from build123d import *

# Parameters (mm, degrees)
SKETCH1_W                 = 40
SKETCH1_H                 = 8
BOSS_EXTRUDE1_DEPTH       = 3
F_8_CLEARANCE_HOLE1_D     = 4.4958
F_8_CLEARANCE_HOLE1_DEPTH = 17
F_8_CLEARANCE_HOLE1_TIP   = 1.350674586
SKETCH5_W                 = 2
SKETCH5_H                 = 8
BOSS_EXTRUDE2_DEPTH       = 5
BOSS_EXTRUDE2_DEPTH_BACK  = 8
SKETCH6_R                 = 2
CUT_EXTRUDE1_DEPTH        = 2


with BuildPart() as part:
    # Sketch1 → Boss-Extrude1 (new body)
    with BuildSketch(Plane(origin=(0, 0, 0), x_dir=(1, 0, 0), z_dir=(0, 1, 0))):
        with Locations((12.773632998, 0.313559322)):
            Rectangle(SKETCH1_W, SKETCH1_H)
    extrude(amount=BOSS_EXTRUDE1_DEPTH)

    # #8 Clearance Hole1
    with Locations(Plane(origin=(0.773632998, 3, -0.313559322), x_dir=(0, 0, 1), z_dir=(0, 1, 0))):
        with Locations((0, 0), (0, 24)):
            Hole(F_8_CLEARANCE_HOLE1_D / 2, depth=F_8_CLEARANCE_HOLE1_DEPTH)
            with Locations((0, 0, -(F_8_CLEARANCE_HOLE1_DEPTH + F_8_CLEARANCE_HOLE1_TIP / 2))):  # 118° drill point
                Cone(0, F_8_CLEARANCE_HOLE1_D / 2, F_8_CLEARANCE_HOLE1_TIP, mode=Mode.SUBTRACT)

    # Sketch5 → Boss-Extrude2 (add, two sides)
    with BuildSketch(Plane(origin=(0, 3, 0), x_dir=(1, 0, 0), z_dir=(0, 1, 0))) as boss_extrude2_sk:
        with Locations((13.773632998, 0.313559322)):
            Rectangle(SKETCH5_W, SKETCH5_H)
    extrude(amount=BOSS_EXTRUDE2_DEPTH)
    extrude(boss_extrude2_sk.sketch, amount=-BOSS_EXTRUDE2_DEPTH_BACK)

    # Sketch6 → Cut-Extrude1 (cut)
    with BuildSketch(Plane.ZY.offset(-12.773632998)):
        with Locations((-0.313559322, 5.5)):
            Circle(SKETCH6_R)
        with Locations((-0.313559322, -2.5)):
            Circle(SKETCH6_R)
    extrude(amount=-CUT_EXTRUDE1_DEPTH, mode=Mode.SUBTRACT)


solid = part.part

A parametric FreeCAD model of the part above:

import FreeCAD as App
import Part
import Sketcher

V = App.Vector
Q = App.Units.Quantity


def add_polygon(sketch, points):
    """Adds a closed chain of lines whose ends are joined by coincident constraints."""
    first, n = sketch.GeometryCount, len(points)
    for a, b in zip(points, points[1:] + points[:1]):
        sketch.addGeometry(Part.LineSegment(App.Vector(*a, 0), App.Vector(*b, 0)), False)
    for i in range(n):
        sketch.addConstraint(Sketcher.Constraint("Coincident", first + i, 2, first + (i + 1) % n, 1))

doc = App.newDocument("Part")
params = doc.addObject("Spreadsheet::Sheet", "Params")
for row, (alias, value) in enumerate([
    ("sketch1_width", "40 mm"),
    ("sketch1_height", "8 mm"),
    ("pad1_length", "3 mm"),
    ("hole_diameter", "4.4958 mm"),
    ("hole_depth", "17 mm"),
    ("sketch3_width", "2 mm"),
    ("sketch3_height", "8 mm"),
    ("pad2_length", "5 mm"),
    ("pad2_length2", "8 mm"),
    ("sketch4_diameter", "4 mm"),
    ("pocket1_length", "2 mm"),
], start=1):
    params.set(f"A{row}", alias)
    params.set(f"B{row}", "=" + value)
    params.setAlias(f"B{row}", alias)

body = doc.addObject("PartDesign::Body", "Body")

# Sketch on XZ plane
sketch1 = body.newObject("Sketcher::SketchObject", "Sketch")
sketch1.AttachmentSupport = (doc.getObject("XZ_Plane"), [""])
sketch1.MapMode = "FlatFace"
add_polygon(sketch1, [(-7, -4), (-7, 4), (33, 4), (33, -4)])  # lines 0-3
sketch1.addConstraint([
    Sketcher.Constraint("Vertical", 0),
    Sketcher.Constraint("Horizontal", 1),
    Sketcher.Constraint("Vertical", 2),
    Sketcher.Constraint("Horizontal", 3),
    Sketcher.Constraint("DistanceX", 1, 1, 1, 2, Q("40 mm")),
    Sketcher.Constraint("DistanceY", 0, 1, 0, 2, Q("8 mm")),
    Sketcher.Constraint("DistanceY", -1, 1, 0, 2, Q("3.686441 mm")),
    Sketcher.Constraint("DistanceX", 0, 2, -1, 1, Q("7.226367 mm")),
])
sketch1.setExpression("Constraints[8]", "Params.sketch1_width")
sketch1.setExpression("Constraints[9]", "Params.sketch1_height")
pad1 = body.newObject("PartDesign::Pad", "Pad")
pad1.Profile = sketch1
pad1.setExpression("Length", "Params.pad1_length")
pad1.Reversed = True

# Sketch on XZ plane
sketch2 = body.newObject("Sketcher::SketchObject", "Sketch001")
sketch2.AttachmentSupport = (doc.getObject("XZ_Plane"), [""])
sketch2.MapMode = "FlatFace"
sketch2.AttachmentOffset = App.Placement(V(0, 0, -3), App.Rotation())
sketch2.addGeometry([
    Part.Circle(V(0.8, -0.3, 0), V(0, 0, 1), 2.2),
    Part.Circle(V(24.8, -0.3, 0), V(0, 0, 1), 2.2),
], False)
sketch2.addConstraint([
    Sketcher.Constraint("Equal", 0, 1),
    Sketcher.Constraint("Horizontal", 0, 3, 1, 3),
    Sketcher.Constraint("DistanceX", 0, 3, 1, 3, Q("24 mm")),
    Sketcher.Constraint("Diameter", 0, Q("4.4958 mm")),
    Sketcher.Constraint("DistanceY", 0, 3, -1, 1, Q("0.313559 mm")),
    Sketcher.Constraint("DistanceX", -1, 1, 0, 3, Q("0.773633 mm")),
])
doc.recompute()
hole = body.newObject("PartDesign::Hole", "Hole")
hole.Profile = sketch2
hole.ThreadType = "None"
hole.setExpression("Diameter", "Params.hole_diameter")
hole.DepthType = "Dimension"
hole.setExpression("Depth", "Params.hole_depth")
hole.DrillPoint = "Angled"
hole.DrillPointAngle = 118
hole.Reversed = True

# Sketch on XZ plane
sketch3 = body.newObject("Sketcher::SketchObject", "Sketch002")
sketch3.AttachmentSupport = (doc.getObject("XZ_Plane"), [""])
sketch3.MapMode = "FlatFace"
sketch3.AttachmentOffset = App.Placement(V(0, 0, -3), App.Rotation())
add_polygon(sketch3, [(12.8, -4.3), (12.8, 3.7), (14.8, 3.7), (14.8, -4.3)])  # lines 0-3
sketch3.addConstraint([
    Sketcher.Constraint("Vertical", 0),
    Sketcher.Constraint("Horizontal", 1),
    Sketcher.Constraint("Vertical", 2),
    Sketcher.Constraint("Horizontal", 3),
    Sketcher.Constraint("DistanceX", 1, 1, 1, 2, Q("2 mm")),
    Sketcher.Constraint("DistanceY", 0, 1, 0, 2, Q("8 mm")),
    Sketcher.Constraint("DistanceY", -1, 1, 0, 2, Q("3.686441 mm")),
    Sketcher.Constraint("DistanceX", -1, 1, 0, 2, Q("12.773633 mm")),
])
sketch3.setExpression("Constraints[8]", "Params.sketch3_width")
sketch3.setExpression("Constraints[9]", "Params.sketch3_height")
pad2 = body.newObject("PartDesign::Pad", "Pad001")
pad2.Profile = sketch3
pad2.Type = "TwoLengths"
pad2.setExpression("Length", "Params.pad2_length")
pad2.setExpression("Length2", "Params.pad2_length2")
pad2.Reversed = True

# Sketch on YZ plane
sketch4 = body.newObject("Sketcher::SketchObject", "Sketch003")
sketch4.AttachmentSupport = (doc.getObject("YZ_Plane"), [""])
sketch4.MapMode = "FlatFace"
sketch4.AttachmentOffset = App.Placement(V(0, 0, 12.773633), App.Rotation())
sketch4.addGeometry([
    Part.Circle(V(5.5, -0.3, 0), V(0, 0, 1), 2),
    Part.Circle(V(-2.5, -0.3, 0), V(0, 0, 1), 2),
], False)
sketch4.addConstraint([
    Sketcher.Constraint("Equal", 0, 1),
    Sketcher.Constraint("Horizontal", 0, 3, 1, 3),
    Sketcher.Constraint("Diameter", 0, Q("4 mm")),
    Sketcher.Constraint("DistanceX", 1, 3, 0, 3, Q("8 mm")),
    Sketcher.Constraint("DistanceX", -1, 1, 0, 3, Q("5.5 mm")),
    Sketcher.Constraint("DistanceY", 0, 3, -1, 1, Q("0.313559 mm")),
])
sketch4.setExpression("Constraints[2]", "Params.sketch4_diameter")
pocket1 = body.newObject("PartDesign::Pocket", "Pocket")
pocket1.Profile = sketch4
pocket1.setExpression("Length", "Params.pocket1_length")
pocket1.Reversed = True

doc.recompute()
